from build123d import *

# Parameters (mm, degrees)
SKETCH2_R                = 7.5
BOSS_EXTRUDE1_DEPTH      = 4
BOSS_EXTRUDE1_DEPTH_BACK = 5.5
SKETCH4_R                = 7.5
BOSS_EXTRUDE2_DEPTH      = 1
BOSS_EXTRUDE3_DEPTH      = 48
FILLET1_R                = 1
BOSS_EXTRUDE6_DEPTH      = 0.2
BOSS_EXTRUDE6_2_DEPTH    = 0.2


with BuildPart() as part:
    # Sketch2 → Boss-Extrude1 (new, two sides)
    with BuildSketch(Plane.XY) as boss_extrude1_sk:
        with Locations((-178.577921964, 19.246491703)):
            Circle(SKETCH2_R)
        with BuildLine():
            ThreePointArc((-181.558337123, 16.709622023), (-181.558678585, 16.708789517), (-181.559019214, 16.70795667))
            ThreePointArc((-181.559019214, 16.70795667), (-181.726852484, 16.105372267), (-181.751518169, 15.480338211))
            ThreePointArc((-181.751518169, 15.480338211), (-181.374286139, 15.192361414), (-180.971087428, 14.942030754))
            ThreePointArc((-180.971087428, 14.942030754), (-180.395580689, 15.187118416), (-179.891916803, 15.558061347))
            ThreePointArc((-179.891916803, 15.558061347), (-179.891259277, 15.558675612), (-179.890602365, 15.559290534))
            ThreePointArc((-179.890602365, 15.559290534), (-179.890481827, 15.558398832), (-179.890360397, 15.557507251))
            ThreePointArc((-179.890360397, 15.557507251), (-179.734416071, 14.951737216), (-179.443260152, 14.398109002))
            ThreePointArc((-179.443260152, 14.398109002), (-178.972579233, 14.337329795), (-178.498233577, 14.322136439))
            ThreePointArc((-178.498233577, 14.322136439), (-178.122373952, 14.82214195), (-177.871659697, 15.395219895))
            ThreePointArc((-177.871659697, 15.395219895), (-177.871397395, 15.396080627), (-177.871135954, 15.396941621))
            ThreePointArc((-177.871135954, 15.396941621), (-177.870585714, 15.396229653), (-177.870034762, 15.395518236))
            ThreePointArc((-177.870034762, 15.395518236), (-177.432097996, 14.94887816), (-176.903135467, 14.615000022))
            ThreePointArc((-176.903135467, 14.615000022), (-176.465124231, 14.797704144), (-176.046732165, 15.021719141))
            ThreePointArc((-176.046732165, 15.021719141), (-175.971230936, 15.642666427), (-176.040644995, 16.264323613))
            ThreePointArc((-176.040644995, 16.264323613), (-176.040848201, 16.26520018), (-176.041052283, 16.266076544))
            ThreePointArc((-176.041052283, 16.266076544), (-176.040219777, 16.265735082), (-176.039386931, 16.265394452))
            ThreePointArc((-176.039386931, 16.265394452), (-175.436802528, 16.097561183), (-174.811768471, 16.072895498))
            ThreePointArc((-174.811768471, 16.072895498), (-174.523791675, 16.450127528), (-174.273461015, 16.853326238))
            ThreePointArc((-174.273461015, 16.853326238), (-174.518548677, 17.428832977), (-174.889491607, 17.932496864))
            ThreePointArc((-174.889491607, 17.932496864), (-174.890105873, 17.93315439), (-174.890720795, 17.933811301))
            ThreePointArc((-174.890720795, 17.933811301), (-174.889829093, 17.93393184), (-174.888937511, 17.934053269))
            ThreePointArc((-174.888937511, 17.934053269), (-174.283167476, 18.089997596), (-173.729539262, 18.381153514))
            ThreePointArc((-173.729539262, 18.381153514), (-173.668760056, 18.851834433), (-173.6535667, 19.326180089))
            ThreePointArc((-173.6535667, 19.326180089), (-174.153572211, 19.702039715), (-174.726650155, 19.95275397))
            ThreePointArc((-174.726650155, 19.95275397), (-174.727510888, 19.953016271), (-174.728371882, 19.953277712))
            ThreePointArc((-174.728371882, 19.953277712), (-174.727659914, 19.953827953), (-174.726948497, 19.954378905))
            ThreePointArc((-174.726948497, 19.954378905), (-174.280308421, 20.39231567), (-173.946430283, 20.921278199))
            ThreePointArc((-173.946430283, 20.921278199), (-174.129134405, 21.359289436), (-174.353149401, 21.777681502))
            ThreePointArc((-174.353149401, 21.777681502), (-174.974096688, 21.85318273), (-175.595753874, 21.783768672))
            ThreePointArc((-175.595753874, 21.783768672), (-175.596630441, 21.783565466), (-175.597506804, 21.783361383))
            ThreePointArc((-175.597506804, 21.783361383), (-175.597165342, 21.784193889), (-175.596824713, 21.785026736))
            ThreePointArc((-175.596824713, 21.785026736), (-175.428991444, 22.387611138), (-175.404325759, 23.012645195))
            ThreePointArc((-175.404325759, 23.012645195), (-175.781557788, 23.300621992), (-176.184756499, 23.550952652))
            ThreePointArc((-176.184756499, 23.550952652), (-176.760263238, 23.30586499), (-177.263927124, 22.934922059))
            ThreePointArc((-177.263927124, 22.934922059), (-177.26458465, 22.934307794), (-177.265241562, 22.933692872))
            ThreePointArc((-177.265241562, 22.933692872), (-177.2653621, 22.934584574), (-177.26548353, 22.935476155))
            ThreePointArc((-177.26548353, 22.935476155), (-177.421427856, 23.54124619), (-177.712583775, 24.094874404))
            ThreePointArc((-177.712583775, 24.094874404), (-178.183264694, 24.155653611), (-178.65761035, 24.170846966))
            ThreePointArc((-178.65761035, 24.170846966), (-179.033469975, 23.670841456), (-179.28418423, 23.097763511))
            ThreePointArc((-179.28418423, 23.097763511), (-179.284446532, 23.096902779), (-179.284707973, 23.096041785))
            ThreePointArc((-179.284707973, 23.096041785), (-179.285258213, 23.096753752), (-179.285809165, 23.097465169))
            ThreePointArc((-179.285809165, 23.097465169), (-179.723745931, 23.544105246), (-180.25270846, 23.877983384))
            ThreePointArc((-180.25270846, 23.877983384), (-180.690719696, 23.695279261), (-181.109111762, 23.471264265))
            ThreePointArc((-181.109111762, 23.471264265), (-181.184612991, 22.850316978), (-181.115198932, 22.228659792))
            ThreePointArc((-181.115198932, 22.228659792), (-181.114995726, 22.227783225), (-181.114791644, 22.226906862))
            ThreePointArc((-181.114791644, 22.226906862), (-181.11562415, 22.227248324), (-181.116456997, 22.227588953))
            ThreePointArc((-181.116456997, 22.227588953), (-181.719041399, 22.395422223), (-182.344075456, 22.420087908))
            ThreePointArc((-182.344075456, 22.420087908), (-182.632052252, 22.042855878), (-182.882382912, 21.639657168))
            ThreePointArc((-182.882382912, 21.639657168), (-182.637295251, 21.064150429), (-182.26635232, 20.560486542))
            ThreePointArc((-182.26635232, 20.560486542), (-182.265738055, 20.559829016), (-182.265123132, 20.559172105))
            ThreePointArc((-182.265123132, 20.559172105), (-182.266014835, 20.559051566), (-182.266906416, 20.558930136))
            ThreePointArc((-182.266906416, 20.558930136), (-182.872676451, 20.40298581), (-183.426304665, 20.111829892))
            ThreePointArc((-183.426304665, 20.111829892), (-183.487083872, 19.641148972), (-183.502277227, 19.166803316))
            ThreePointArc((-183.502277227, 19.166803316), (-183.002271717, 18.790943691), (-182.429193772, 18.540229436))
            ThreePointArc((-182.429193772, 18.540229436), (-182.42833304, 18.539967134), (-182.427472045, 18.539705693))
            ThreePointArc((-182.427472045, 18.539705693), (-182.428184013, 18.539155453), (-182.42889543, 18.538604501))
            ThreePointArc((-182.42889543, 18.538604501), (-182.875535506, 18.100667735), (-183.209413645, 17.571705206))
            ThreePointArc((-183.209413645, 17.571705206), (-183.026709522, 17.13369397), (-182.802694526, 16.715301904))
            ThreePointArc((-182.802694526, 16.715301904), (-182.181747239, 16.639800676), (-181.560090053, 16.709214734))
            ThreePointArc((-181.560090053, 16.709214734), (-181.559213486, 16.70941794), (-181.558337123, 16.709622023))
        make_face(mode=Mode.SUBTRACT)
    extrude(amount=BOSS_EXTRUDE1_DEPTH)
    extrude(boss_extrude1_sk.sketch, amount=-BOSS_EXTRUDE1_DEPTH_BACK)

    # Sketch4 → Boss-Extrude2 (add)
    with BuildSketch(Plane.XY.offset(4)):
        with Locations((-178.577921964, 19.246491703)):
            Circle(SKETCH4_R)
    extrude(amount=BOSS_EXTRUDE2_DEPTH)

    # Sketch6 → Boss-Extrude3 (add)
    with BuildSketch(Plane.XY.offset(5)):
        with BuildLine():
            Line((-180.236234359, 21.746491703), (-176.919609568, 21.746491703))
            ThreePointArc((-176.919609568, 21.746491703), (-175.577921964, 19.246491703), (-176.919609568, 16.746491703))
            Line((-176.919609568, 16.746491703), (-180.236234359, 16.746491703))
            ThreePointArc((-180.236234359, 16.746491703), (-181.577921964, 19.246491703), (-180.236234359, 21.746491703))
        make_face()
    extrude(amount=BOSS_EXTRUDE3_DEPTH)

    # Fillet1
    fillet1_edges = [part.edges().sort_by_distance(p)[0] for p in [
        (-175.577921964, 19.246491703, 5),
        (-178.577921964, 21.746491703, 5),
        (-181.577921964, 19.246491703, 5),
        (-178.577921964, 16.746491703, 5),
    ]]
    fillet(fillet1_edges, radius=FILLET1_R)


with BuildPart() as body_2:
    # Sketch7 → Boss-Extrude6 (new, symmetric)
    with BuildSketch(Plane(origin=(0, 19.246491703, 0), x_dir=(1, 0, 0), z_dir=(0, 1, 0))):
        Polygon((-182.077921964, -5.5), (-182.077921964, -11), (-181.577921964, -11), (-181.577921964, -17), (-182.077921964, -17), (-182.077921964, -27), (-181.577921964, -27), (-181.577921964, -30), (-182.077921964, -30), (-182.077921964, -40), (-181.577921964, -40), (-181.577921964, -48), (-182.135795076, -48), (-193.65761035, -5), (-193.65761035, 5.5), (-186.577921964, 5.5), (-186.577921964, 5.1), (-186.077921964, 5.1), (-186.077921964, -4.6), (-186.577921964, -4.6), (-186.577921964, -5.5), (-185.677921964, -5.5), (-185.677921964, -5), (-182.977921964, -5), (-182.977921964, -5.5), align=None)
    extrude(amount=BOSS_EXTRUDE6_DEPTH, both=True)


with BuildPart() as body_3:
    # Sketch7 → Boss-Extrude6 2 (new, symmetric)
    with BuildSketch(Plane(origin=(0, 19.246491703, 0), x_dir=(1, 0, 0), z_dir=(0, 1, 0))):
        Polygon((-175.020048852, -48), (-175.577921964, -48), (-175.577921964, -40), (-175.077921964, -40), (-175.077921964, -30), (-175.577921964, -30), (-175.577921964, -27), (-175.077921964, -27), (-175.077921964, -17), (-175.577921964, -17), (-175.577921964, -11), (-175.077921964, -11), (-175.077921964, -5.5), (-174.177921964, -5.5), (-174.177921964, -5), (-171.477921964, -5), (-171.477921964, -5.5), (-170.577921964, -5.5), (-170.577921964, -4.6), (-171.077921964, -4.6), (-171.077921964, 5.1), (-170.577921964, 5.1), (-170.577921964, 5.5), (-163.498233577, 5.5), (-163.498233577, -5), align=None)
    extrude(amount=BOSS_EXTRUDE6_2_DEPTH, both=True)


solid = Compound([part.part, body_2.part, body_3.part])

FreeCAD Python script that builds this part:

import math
import FreeCAD as App
import Part
import Sketcher
from FreeCAD import Vector
Q = App.Units.Quantity


def edges_at(feature, points):
    """Names of the edges that pass closest to the given points."""
    edges = feature.Shape.Edges
    near = lambda p: min(range(len(edges)), key=lambda i: edges[i].distToShape(Part.Vertex(*p))[0])
    return sorted({f"Edge{near(p) + 1}" for p in points})

doc = App.newDocument("Part")
body = doc.addObject("PartDesign::Body", "Body")

# Sketch on XY plane
sketch1 = body.newObject("Sketcher::SketchObject", "Sketch")
sketch1.AttachmentSupport = (doc.getObject("XY_Plane"), [""])
sketch1.MapMode = "FlatFace"
sketch1.addGeometry(Part.Circle(Vector(-178.577922, 19.246492, 0), Vector(0, 0, 1), 7.5), False)
sketch1.addGeometry(Part.ArcOfCircle(Part.Circle(Vector(-180.726263, 16.367851, 0), Vector(0, 0, 1), 0.899531), math.radians(157.669787), math.radians(157.784415)), False)
sketch1.addGeometry(Part.ArcOfCircle(Part.Circle(Vector(-181.762722, 17.585298, 0), Vector(0, 0, 1), 0.899211), math.radians(-76.976888), math.radians(-76.86222)), False)
sketch1.addGeometry(Part.ArcOfCircle(Part.Circle(Vector(-182.168521, 19.339768, 0), Vector(0, 0, 1), 2.7), math.radians(-103.584498), math.radians(-76.976849)), False)
sketch1.addGeometry(Part.ArcOfCircle(Part.Circle(Vector(-178.577922, 19.246492, 0), Vector(0, 0, 1), 4.925), math.radians(-160.119582), math.radians(-149.072892)), False)
sketch1.addGeometry(Part.ArcOfCircle(Part.Circle(Vector(-180.774628, 16.404735, 0), Vector(0, 0, 1), 2.7), math.radians(127.784375), math.radians(154.392025)), False)
sketch1.addGeometry(Part.ArcOfCircle(Part.Circle(Vector(-181.877888, 17.82785, 0), Vector(0, 0, 1), 0.899322), math.radians(127.669754), math.radians(127.784408)), False)
sketch1.addGeometry(Part.ArcOfCircle(Part.Circle(Vector(-182.166595, 19.400392, 0), Vector(0, 0, 1), 0.899354), math.radians(-106.976892), math.radians(-106.862242)), False)
sketch1.addGeometry(Part.ArcOfCircle(Part.Circle(Vector(-181.640834, 21.122571, 0), Vector(0, 0, 1), 2.7), math.radians(-133.584498), math.radians(-106.976849)), False)
sketch1.addGeometry(Part.ArcOfCircle(Part.Circle(Vector(-178.577922, 19.246492, 0), Vector(0, 0, 1), 4.925), math.radians(169.880418), math.radians(180.927108)), False)
sketch1.addGeometry(Part.ArcOfCircle(Part.Circle(Vector(-181.901204, 17.883811, 0), Vector(0, 0, 1), 2.7), math.radians(97.784375), math.radians(124.392025)), False)
sketch1.addGeometry(Part.ArcOfCircle(Part.Circle(Vector(-182.144963, 19.666914, 0), Vector(0, 0, 1), 0.900313), math.radians(97.669855), math.radians(97.784383)), False)
sketch1.addGeometry(Part.ArcOfCircle(Part.Circle(Vector(-181.609138, 21.173844, 0), Vector(0, 0, 1), 0.898965), math.radians(-136.976886), math.radians(-136.862186)), False)
sketch1.addGeometry(Part.ArcOfCircle(Part.Circle(Vector(-180.292442, 22.40268, 0), Vector(0, 0, 1), 2.7), math.radians(-163.584498), math.radians(-136.976849)), False)
sketch1.addGeometry(Part.ArcOfCircle(Part.Circle(Vector(-178.577922, 19.246492, 0), Vector(0, 0, 1), 4.925), math.radians(139.880418), math.radians(150.927108)), False)
sketch1.addGeometry(Part.ArcOfCircle(Part.Circle(Vector(-182.137309, 19.728017, 0), Vector(0, 0, 1), 2.7), math.radians(67.784375), math.radians(94.392025)), False)
sketch1.addGeometry(Part.ArcOfCircle(Part.Circle(Vector(-181.456563, 21.394833, 0), Vector(0, 0, 1), 0.89953), math.radians(67.669787), math.radians(67.784415)), False)
sketch1.addGeometry(Part.ArcOfCircle(Part.Circle(Vector(-180.238168, 22.431512, 0), Vector(0, 0, 1), 0.900185), math.radians(-166.976857), math.radians(-166.862313)), False)
sketch1.addGeometry(Part.ArcOfCircle(Part.Circle(Vector(-178.484645, 22.837091, 0), Vector(0, 0, 1), 2.7), math.radians(166.415501), math.radians(193.023151)), False)
sketch1.addGeometry(Part.ArcOfCircle(Part.Circle(Vector(-178.577922, 19.246492, 0), Vector(0, 0, 1), 4.925), math.radians(109.880418), math.radians(120.927108)), False)
sketch1.addGeometry(Part.ArcOfCircle(Part.Circle(Vector(-181.419679, 21.443198, 0), Vector(0, 0, 1), 2.7), math.radians(37.784375), math.radians(64.392025)), False)
sketch1.addGeometry(Part.ArcOfCircle(Part.Circle(Vector(-179.997046, 22.546084, 0), Vector(0, 0, 1), 0.899933), math.radians(37.669813), math.radians(37.784389)), False)
sketch1.addGeometry(Part.ArcOfCircle(Part.Circle(Vector(-178.423744, 22.83508, 0), Vector(0, 0, 1), 0.899644), math.radians(163.023117), math.radians(163.13773)), False)
sketch1.addGeometry(Part.ArcOfCircle(Part.Circle(Vector(-176.701843, 22.309403, 0), Vector(0, 0, 1), 2.7), math.radians(136.415502), math.radians(163.023151)), False)
sketch1.addGeometry(Part.ArcOfCircle(Part.Circle(Vector(-178.577922, 19.246492, 0), Vector(0, 0, 1), 4.925), math.radians(79.880418), math.radians(90.927108)), False)
sketch1.addGeometry(Part.ArcOfCircle(Part.Circle(Vector(-179.940603, 22.569774, 0), Vector(0, 0, 1), 2.7), math.radians(7.784375), math.radians(34.392025)), False)
sketch1.addGeometry(Part.ArcOfCircle(Part.Circle(Vector(-178.15665, 22.813649, 0), Vector(0, 0, 1), 0.899455), math.radians(7.669773), math.radians(7.78441)), False)
sketch1.addGeometry(Part.ArcOfCircle(Part.Circle(Vector(-176.649605, 22.276675, 0), Vector(0, 0, 1), 0.900378), math.radians(133.023159), math.radians(133.137679)), False)
sketch1.addGeometry(Part.ArcOfCircle(Part.Circle(Vector(-175.421734, 20.961011, 0), Vector(0, 0, 1), 2.7), math.radians(106.415502), math.radians(133.023151)), False)
sketch1.addGeometry(Part.ArcOfCircle(Part.Circle(Vector(-178.577922, 19.246492, 0), Vector(0, 0, 1), 4.925), math.radians(49.880418), math.radians(60.927108)), False)
sketch1.addGeometry(Part.ArcOfCircle(Part.Circle(Vector(-178.096397, 22.805879, 0), Vector(0, 0, 1), 2.7), math.radians(-22.215625), math.radians(4.392025)), False)
sketch1.addGeometry(Part.ArcOfCircle(Part.Circle(Vector(-176.429581, 22.125133, 0), Vector(0, 0, 1), 0.899531), math.radians(-22.330213), math.radians(-22.215585)), False)
sketch1.addGeometry(Part.ArcOfCircle(Part.Circle(Vector(-175.393122, 20.907686, 0), Vector(0, 0, 1), 0.899211), math.radians(103.023112), math.radians(103.13778)), False)
sketch1.addGeometry(Part.ArcOfCircle(Part.Circle(Vector(-174.987323, 19.153215, 0), Vector(0, 0, 1), 2.7), math.radians(76.415502), math.radians(103.023151)), False)
sketch1.addGeometry(Part.ArcOfCircle(Part.Circle(Vector(-178.577922, 19.246492, 0), Vector(0, 0, 1), 4.925), math.radians(19.880418), math.radians(30.927108)), False)
sketch1.addGeometry(Part.ArcOfCircle(Part.Circle(Vector(-176.381216, 22.088249, 0), Vector(0, 0, 1), 2.7), math.radians(-52.215625), math.radians(-25.607975)), False)
sketch1.addGeometry(Part.ArcOfCircle(Part.Circle(Vector(-175.278441, 20.665759, 0), Vector(0, 0, 1), 0.900114), math.radians(-52.33017), math.radians(-52.215617)), False)
sketch1.addGeometry(Part.ArcOfCircle(Part.Circle(Vector(-174.989697, 19.091118, 0), Vector(0, 0, 1), 0.900894), math.radians(73.023236), math.radians(73.13769)), False)
sketch1.addGeometry(Part.ArcOfCircle(Part.Circle(Vector(-175.51501, 17.370412, 0), Vector(0, 0, 1), 2.7), math.radians(46.415502), math.radians(73.023151)), False)
sketch1.addGeometry(Part.ArcOfCircle(Part.Circle(Vector(-178.577922, 19.246492, 0), Vector(0, 0, 1), 4.925), math.radians(-10.119582), math.radians(0.927108)), False)
sketch1.addGeometry(Part.ArcOfCircle(Part.Circle(Vector(-175.25464, 20.609172, 0), Vector(0, 0, 1), 2.7), math.radians(-82.215625), math.radians(-55.607975)), False)
sketch1.addGeometry(Part.ArcOfCircle(Part.Circle(Vector(-175.01105, 18.827321, 0), Vector(0, 0, 1), 0.901576), math.radians(-82.330096), math.radians(-82.215729)), False)
sketch1.addGeometry(Part.ArcOfCircle(Part.Circle(Vector(-175.547772, 17.318141, 0), Vector(0, 0, 1), 0.900426), math.radians(43.023207), math.radians(43.137721)), False)
sketch1.addGeometry(Part.ArcOfCircle(Part.Circle(Vector(-176.863402, 16.090304, 0), Vector(0, 0, 1), 2.7), math.radians(16.415502), math.radians(43.023151)), False)
sketch1.addGeometry(Part.ArcOfCircle(Part.Circle(Vector(-178.577922, 19.246492, 0), Vector(0, 0, 1), 4.925), math.radians(-40.119582), math.radians(-29.072892)), False)
sketch1.addGeometry(Part.ArcOfCircle(Part.Circle(Vector(-175.018535, 18.764967, 0), Vector(0, 0, 1), 2.7), math.radians(-112.215625), math.radians(-85.607975)), False)
sketch1.addGeometry(Part.ArcOfCircle(Part.Circle(Vector(-175.698786, 17.099358, 0), Vector(0, 0, 1), 0.900835), math.radians(-112.330171), math.radians(-112.21571)), False)
sketch1.addGeometry(Part.ArcOfCircle(Part.Circle(Vector(-176.917898, 16.06142, 0), Vector(0, 0, 1), 0.900412), math.radians(13.02315), math.radians(13.137665)), False)
sketch1.addGeometry(Part.ArcOfCircle(Part.Circle(Vector(-178.671199, 15.655893, 0), Vector(0, 0, 1), 2.7), math.radians(-13.584499), math.radians(13.023151)), False)
sketch1.addGeometry(Part.ArcOfCircle(Part.Circle(Vector(-178.577922, 19.246492, 0), Vector(0, 0, 1), 4.925), math.radians(-70.119582), math.radians(-59.072892)), False)
sketch1.addGeometry(Part.ArcOfCircle(Part.Circle(Vector(-175.736165, 17.049785, 0), Vector(0, 0, 1), 2.7), math.radians(-142.215625), math.radians(-115.607975)), False)
sketch1.addGeometry(Part.ArcOfCircle(Part.Circle(Vector(-177.159281, 15.946526, 0), Vector(0, 0, 1), 0.899322), math.radians(-142.330246), math.radians(-142.215592)), False)
sketch1.addGeometry(Part.ArcOfCircle(Part.Circle(Vector(-178.732099, 15.657903, 0), Vector(0, 0, 1), 0.899644), math.radians(-16.976883), math.radians(-16.86227)), False)
sketch1.addGeometry(Part.ArcOfCircle(Part.Circle(Vector(-180.454001, 16.18358, 0), Vector(0, 0, 1), 2.7), math.radians(-43.584498), math.radians(-16.976849)), False)
sketch1.addGeometry(Part.ArcOfCircle(Part.Circle(Vector(-178.577922, 19.246492, 0), Vector(0, 0, 1), 4.925), math.radians(-100.119582), math.radians(-89.072892)), False)
sketch1.addGeometry(Part.ArcOfCircle(Part.Circle(Vector(-177.215241, 15.92321, 0), Vector(0, 0, 1), 2.7), math.radians(-172.215625), math.radians(-145.607975)), False)
sketch1.addGeometry(Part.ArcOfCircle(Part.Circle(Vector(-178.999194, 15.679335, 0), Vector(0, 0, 1), 0.899455), math.radians(-172.330227), math.radians(-172.21559)), False)
sketch1.addGeometry(Part.ArcOfCircle(Part.Circle(Vector(-180.506239, 16.216308, 0), Vector(0, 0, 1), 0.900378), math.radians(-46.976841), math.radians(-46.862321)), False)
sketch1.addGeometry(Part.ArcOfCircle(Part.Circle(Vector(-181.73411, 17.531972, 0), Vector(0, 0, 1), 2.7), math.radians(-73.584498), math.radians(-46.976849)), False)
sketch1.addGeometry(Part.ArcOfCircle(Part.Circle(Vector(-178.577922, 19.246492, 0), Vector(0, 0, 1), 4.925), math.radians(-130.119582), math.radians(-119.072892)), False)
sketch1.addGeometry(Part.ArcOfCircle(Part.Circle(Vector(-179.059447, 15.687105, 0), Vector(0, 0, 1), 2.7), math.radians(157.784375), math.radians(184.392025)), False)
sketch1.addConstraint(Sketcher.Constraint("Coincident", 1, 1, 2, 2))
sketch1.addConstraint(Sketcher.Constraint("Tangent", 2, 1, 3, 2))
sketch1.addConstraint(Sketcher.Constraint("Coincident", 3, 1, 4, 2))
sketch1.addConstraint(Sketcher.Constraint("Coincident", 4, 1, 5, 2))
sketch1.addConstraint(Sketcher.Constraint("Tangent", 5, 1, 6, 2))
sketch1.addConstraint(Sketcher.Constraint("Coincident", 6, 1, 7, 2))
sketch1.addConstraint(Sketcher.Constraint("Tangent", 7, 1, 8, 2))
sketch1.addConstraint(Sketcher.Constraint("Coincident", 8, 1, 9, 2))
sketch1.addConstraint(Sketcher.Constraint("Coincident", 9, 1, 10, 2))
sketch1.addConstraint(Sketcher.Constraint("Tangent", 10, 1, 11, 2))
sketch1.addConstraint(Sketcher.Constraint("Coincident", 11, 1, 12, 2))
sketch1.addConstraint(Sketcher.Constraint("Tangent", 12, 1, 13, 2))
sketch1.addConstraint(Sketcher.Constraint("Coincident", 13, 1, 14, 2))
sketch1.addConstraint(Sketcher.Constraint("Coincident", 14, 1, 15, 2))
sketch1.addConstraint(Sketcher.Constraint("Tangent", 15, 1, 16, 2))
sketch1.addConstraint(Sketcher.Constraint("Coincident", 16, 1, 17, 2))
sketch1.addConstraint(Sketcher.Constraint("Tangent", 17, 1, 18, 2))
sketch1.addConstraint(Sketcher.Constraint("Coincident", 18, 1, 19, 2))
sketch1.addConstraint(Sketcher.Constraint("Coincident", 19, 1, 20, 2))
sketch1.addConstraint(Sketcher.Constraint("Tangent", 20, 1, 21, 2))
sketch1.addConstraint(Sketcher.Constraint("Coincident", 21, 1, 22, 2))
sketch1.addConstraint(Sketcher.Constraint("Tangent", 22, 1, 23, 2))
sketch1.addConstraint(Sketcher.Constraint("Coincident", 23, 1, 24, 2))
sketch1.addConstraint(Sketcher.Constraint("Coincident", 24, 1, 25, 2))
sketch1.addConstraint(Sketcher.Constraint("Tangent", 25, 1, 26, 2))
sketch1.addConstraint(Sketcher.Constraint("Coincident", 26, 1, 27, 2))
sketch1.addConstraint(Sketcher.Constraint("Tangent", 27, 1, 28, 2))
sketch1.addConstraint(Sketcher.Constraint("Coincident", 28, 1, 29, 2))
sketch1.addConstraint(Sketcher.Constraint("Coincident", 29, 1, 30, 2))
sketch1.addConstraint(Sketcher.Constraint("Tangent", 30, 1, 31, 2))
sketch1.addConstraint(Sketcher.Constraint("Coincident", 31, 1, 32, 2))
sketch1.addConstraint(Sketcher.Constraint("Tangent", 32, 1, 33, 2))
sketch1.addConstraint(Sketcher.Constraint("Coincident", 33, 1, 34, 2))
sketch1.addConstraint(Sketcher.Constraint("Coincident", 34, 1, 35, 2))
sketch1.addConstraint(Sketcher.Constraint("Tangent", 35, 1, 36, 2))
sketch1.addConstraint(Sketcher.Constraint("Coincident", 36, 1, 37, 2))
sketch1.addConstraint(Sketcher.Constraint("Tangent", 37, 1, 38, 2))
sketch1.addConstraint(Sketcher.Constraint("Coincident", 38, 1, 39, 2))
sketch1.addConstraint(Sketcher.Constraint("Coincident", 39, 1, 40, 2))
sketch1.addConstraint(Sketcher.Constraint("Tangent", 40, 1, 41, 2))
sketch1.addConstraint(Sketcher.Constraint("Coincident", 41, 1, 42, 2))
sketch1.addConstraint(Sketcher.Constraint("Tangent", 42, 1, 43, 2))
sketch1.addConstraint(Sketcher.Constraint("Coincident", 43, 1, 44, 2))
sketch1.addConstraint(Sketcher.Constraint("Coincident", 44, 1, 45, 2))
sketch1.addConstraint(Sketcher.Constraint("Tangent", 45, 1, 46, 2))
sketch1.addConstraint(Sketcher.Constraint("Coincident", 46, 1, 47, 2))
sketch1.addConstraint(Sketcher.Constraint("Tangent", 47, 1, 48, 2))
sketch1.addConstraint(Sketcher.Constraint("Coincident", 48, 1, 49, 2))
sketch1.addConstraint(Sketcher.Constraint("Coincident", 49, 1, 50, 2))
sketch1.addConstraint(Sketcher.Constraint("Tangent", 50, 1, 51, 2))
sketch1.addConstraint(Sketcher.Constraint("Coincident", 51, 1, 52, 2))
sketch1.addConstraint(Sketcher.Constraint("Tangent", 52, 1, 53, 2))
sketch1.addConstraint(Sketcher.Constraint("Coincident", 53, 1, 54, 2))
sketch1.addConstraint(Sketcher.Constraint("Coincident", 54, 1, 55, 2))
sketch1.addConstraint(Sketcher.Constraint("Tangent", 55, 1, 56, 2))
sketch1.addConstraint(Sketcher.Constraint("Coincident", 56, 1, 57, 2))
sketch1.addConstraint(Sketcher.Constraint("Tangent", 57, 1, 58, 2))
sketch1.addConstraint(Sketcher.Constraint("Coincident", 58, 1, 59, 2))
sketch1.addConstraint(Sketcher.Constraint("Coincident", 59, 1, 60, 2))
sketch1.addConstraint(Sketcher.Constraint("Tangent", 60, 1, 1, 2))
sketch1.addConstraint(Sketcher.Constraint("Coincident", 4, 3, 0, 3))
sketch1.addConstraint(Sketcher.Constraint("Coincident", 9, 3, 0, 3))
sketch1.addConstraint(Sketcher.Constraint("Coincident", 14, 3, 0, 3))
sketch1.addConstraint(Sketcher.Constraint("Coincident", 19, 3, 0, 3))
sketch1.addConstraint(Sketcher.Constraint("Coincident", 24, 3, 0, 3))
sketch1.addConstraint(Sketcher.Constraint("Coincident", 29, 3, 0, 3))
sketch1.addConstraint(Sketcher.Constraint("Coincident", 34, 3, 0, 3))
sketch1.addConstraint(Sketcher.Constraint("Coincident", 39, 3, 0, 3))
sketch1.addConstraint(Sketcher.Constraint("Coincident", 44, 3, 0, 3))
sketch1.addConstraint(Sketcher.Constraint("Coincident", 49, 3, 0, 3))
sketch1.addConstraint(Sketcher.Constraint("Coincident", 54, 3, 0, 3))
sketch1.addConstraint(Sketcher.Constraint("Coincident", 59, 3, 0, 3))
sketch1.addConstraint(Sketcher.Constraint("Equal", 3, 5))
sketch1.addConstraint(Sketcher.Constraint("Equal", 5, 8))
sketch1.addConstraint(Sketcher.Constraint("Equal", 4, 9))
sketch1.addConstraint(Sketcher.Constraint("Equal", 8, 10))
sketch1.addConstraint(Sketcher.Constraint("Equal", 10, 13))
sketch1.addConstraint(Sketcher.Constraint("Equal", 9, 14))
sketch1.addConstraint(Sketcher.Constraint("Equal", 13, 15))
sketch1.addConstraint(Sketcher.Constraint("Equal", 1, 16))
sketch1.addConstraint(Sketcher.Constraint("Equal", 15, 18))
sketch1.addConstraint(Sketcher.Constraint("Equal", 14, 19))
sketch1.addConstraint(Sketcher.Constraint("Equal", 18, 20))
sketch1.addConstraint(Sketcher.Constraint("Equal", 20, 23))
sketch1.addConstraint(Sketcher.Constraint("Equal", 19, 24))
sketch1.addConstraint(Sketcher.Constraint("Equal", 23, 25))
sketch1.addConstraint(Sketcher.Constraint("Equal", 25, 28))
sketch1.addConstraint(Sketcher.Constraint("Equal", 24, 29))
sketch1.addConstraint(Sketcher.Constraint("Equal", 28, 30))
sketch1.addConstraint(Sketcher.Constraint("Equal", 16, 31))
sketch1.addConstraint(Sketcher.Constraint("Equal", 2, 32))
sketch1.addConstraint(Sketcher.Constraint("Equal", 30, 33))
sketch1.addConstraint(Sketcher.Constraint("Equal", 29, 34))
sketch1.addConstraint(Sketcher.Constraint("Equal", 33, 35))
sketch1.addConstraint(Sketcher.Constraint("Equal", 35, 38))
sketch1.addConstraint(Sketcher.Constraint("Equal", 34, 39))
sketch1.addConstraint(Sketcher.Constraint("Equal", 38, 40))
sketch1.addConstraint(Sketcher.Constraint("Equal", 40, 43))
sketch1.addConstraint(Sketcher.Constraint("Equal", 39, 44))
sketch1.addConstraint(Sketcher.Constraint("Equal", 43, 45))
sketch1.addConstraint(Sketcher.Constraint("Equal", 45, 48))
sketch1.addConstraint(Sketcher.Constraint("Equal", 44, 49))
sketch1.addConstraint(Sketcher.Constraint("Equal", 48, 50))
sketch1.addConstraint(Sketcher.Constraint("Equal", 6, 51))
sketch1.addConstraint(Sketcher.Constraint("Equal", 22, 52))
sketch1.addConstraint(Sketcher.Constraint("Equal", 50, 53))
sketch1.addConstraint(Sketcher.Constraint("Equal", 49, 54))
sketch1.addConstraint(Sketcher.Constraint("Equal", 53, 55))
sketch1.addConstraint(Sketcher.Constraint("Equal", 26, 56))
sketch1.addConstraint(Sketcher.Constraint("Equal", 27, 57))
sketch1.addConstraint(Sketcher.Constraint("Equal", 55, 58))
sketch1.addConstraint(Sketcher.Constraint("Equal", 54, 59))
sketch1.addConstraint(Sketcher.Constraint("Equal", 58, 60))
sketch1.addConstraint(Sketcher.Constraint("Diameter", 0, 15.0))
sketch1.addConstraint(Sketcher.Constraint("Radius", 3, 2.7))
sketch1.addConstraint(Sketcher.Constraint("Radius", 4, 4.925))
sketch1.addConstraint(Sketcher.Constraint("Radius", 1, 0.899531))
sketch1.addConstraint(Sketcher.Constraint("Radius", 2, 0.899211))
sketch1.addConstraint(Sketcher.Constraint("Radius", 27, 0.900378))
sketch1.addConstraint(Sketcher.Constraint("DistanceX", 53, 3, -1, 1, 180.454001))
sketch1.addConstraint(Sketcher.Constraint("DistanceY", -1, 1, 49, 1, 14.615))
sketch1.addConstraint(Sketcher.Constraint("Radius", 6, 0.899322))
sketch1.addConstraint(Sketcher.Constraint("Radius", 7, 0.899354))
sketch1.addConstraint(Sketcher.Constraint("Radius", 11, 0.900313))
sketch1.addConstraint(Sketcher.Constraint("Radius", 12, 0.898965))
sketch1.addConstraint(Sketcher.Constraint("Radius", 17, 0.900185))
sketch1.addConstraint(Sketcher.Constraint("Radius", 21, 0.899933))
sketch1.addConstraint(Sketcher.Constraint("Radius", 22, 0.899644))
sketch1.addConstraint(Sketcher.Constraint("Radius", 26, 0.899455))
sketch1.addConstraint(Sketcher.Constraint("Radius", 36, 0.900114))
sketch1.addConstraint(Sketcher.Constraint("Radius", 37, 0.900894))
sketch1.addConstraint(Sketcher.Constraint("Radius", 41, 0.901576))
sketch1.addConstraint(Sketcher.Constraint("Radius", 42, 0.900426))
sketch1.addConstraint(Sketcher.Constraint("Radius", 46, 0.900835))
sketch1.addConstraint(Sketcher.Constraint("Radius", 47, 0.900412))
sketch1.addConstraint(Sketcher.Constraint("DistanceX", 48, 3, -1, 1, 178.671199))
sketch1.addConstraint(Sketcher.Constraint("DistanceX", 52, 3, -1, 1, 178.732099))
sketch1.addConstraint(Sketcher.Constraint("DistanceY", -1, 1, 3, 1, 16.715302))
sketch1.addConstraint(Sketcher.Constraint("DistanceX", 17, 1, -1, 1, 181.115199))
sketch1.addConstraint(Sketcher.Constraint("DistanceX", 0, 3, -1, 1, 178.577922))
sketch1.addConstraint(Sketcher.Constraint("DistanceY", -1, 1, 0, 3, 19.246492))
sketch1.addConstraint(Sketcher.Constraint("DistanceY", -1, 1, 1, 3, 16.367851))
sketch1.addConstraint(Sketcher.Constraint("DistanceX", 2, 3, -1, 1, 181.762722))
sketch1.addConstraint(Sketcher.Constraint("DistanceX", 3, 3, -1, 1, 182.168521))
sketch1.addConstraint(Sketcher.Constraint("DistanceX", 5, 3, -1, 1, 180.774628))
sketch1.addConstraint(Sketcher.Constraint("DistanceY", -1, 1, 6, 3, 17.82785))
sketch1.addConstraint(Sketcher.Constraint("DistanceY", -1, 1, 7, 3, 19.400392))
sketch1.addConstraint(Sketcher.Constraint("DistanceY", -1, 1, 8, 3, 21.122571))
sketch1.addConstraint(Sketcher.Constraint("DistanceY", -1, 1, 10, 3, 17.883811))
sketch1.addConstraint(Sketcher.Constraint("DistanceX", 12, 3, -1, 1, 181.609138))
sketch1.addConstraint(Sketcher.Constraint("DistanceX", 13, 3, -1, 1, 180.292442))
sketch1.addConstraint(Sketcher.Constraint("DistanceY", -1, 1, 13, 3, 22.40268))
sketch1.addConstraint(Sketcher.Constraint("DistanceX", 15, 3, -1, 1, 182.137309))
sketch1.addConstraint(Sketcher.Constraint("DistanceY", -1, 1, 17, 3, 22.431512))
sketch1.addConstraint(Sketcher.Constraint("DistanceY", -1, 1, 18, 3, 22.837091))
sketch1.addConstraint(Sketcher.Constraint("DistanceX", 20, 3, -1, 1, 181.419679))
sketch1.addConstraint(Sketcher.Constraint("DistanceY", -1, 1, 22, 3, 22.83508))
sketch1.addConstraint(Sketcher.Constraint("DistanceX", 26, 3, -1, 1, 178.15665))
sketch1.addConstraint(Sketcher.Constraint("DistanceY", -1, 1, 26, 3, 22.813649))
sketch1.addConstraint(Sketcher.Constraint("DistanceY", -1, 1, 28, 3, 20.961011))
sketch1.addConstraint(Sketcher.Constraint("DistanceY", -1, 1, 30, 3, 22.805879))
sketch1.addConstraint(Sketcher.Constraint("DistanceX", 31, 3, -1, 1, 176.429581))
sketch1.addConstraint(Sketcher.Constraint("DistanceX", 32, 3, -1, 1, 175.393122))
sketch1.addConstraint(Sketcher.Constraint("DistanceY", -1, 1, 35, 3, 22.088249))
sketch1.addConstraint(Sketcher.Constraint("DistanceX", 36, 3, -1, 1, 175.278441))
sketch1.addConstraint(Sketcher.Constraint("DistanceY", -1, 1, 36, 3, 20.665759))
sketch1.addConstraint(Sketcher.Constraint("DistanceY", -1, 1, 37, 3, 19.091118))
sketch1.addConstraint(Sketcher.Constraint("DistanceX", 38, 3, -1, 1, 175.51501))
sketch1.addConstraint(Sketcher.Constraint("DistanceX", 40, 3, -1, 1, 175.25464))
sketch1.addConstraint(Sketcher.Constraint("DistanceX", 41, 3, -1, 1, 175.01105))
sketch1.addConstraint(Sketcher.Constraint("DistanceY", -1, 1, 41, 3, 18.827321))
sketch1.addConstraint(Sketcher.Constraint("DistanceY", -1, 1, 42, 3, 17.318141))
sketch1.addConstraint(Sketcher.Constraint("DistanceY", -1, 1, 46, 3, 17.099358))
sketch1.addConstraint(Sketcher.Constraint("DistanceY", -1, 1, 47, 3, 16.06142))
sketch1.addConstraint(Sketcher.Constraint("DistanceX", 51, 3, -1, 1, 177.159281))
sketch1.addConstraint(Sketcher.Constraint("DistanceY", -1, 1, 53, 3, 16.18358))
sketch1.addConstraint(Sketcher.Constraint("DistanceX", 55, 3, -1, 1, 177.215241))
sketch1.addConstraint(Sketcher.Constraint("DistanceY", -1, 1, 55, 3, 15.92321))
sketch1.addConstraint(Sketcher.Constraint("DistanceX", 57, 3, -1, 1, 180.506239))
sketch1.addConstraint(Sketcher.Constraint("DistanceX", 58, 3, -1, 1, 181.73411))
sketch1.addConstraint(Sketcher.Constraint("DistanceY", -1, 1, 9, 1, 20.11183))
sketch1.addConstraint(Sketcher.Constraint("DistanceY", -1, 1, 10, 1, 20.55893))
sketch1.addConstraint(Sketcher.Constraint("DistanceY", -1, 1, 15, 1, 22.227589))
sketch1.addConstraint(Sketcher.Constraint("DistanceX", 16, 1, -1, 1, 181.114792))
sketch1.addConstraint(Sketcher.Constraint("DistanceX", 19, 1, -1, 1, 180.252708))
sketch1.addConstraint(Sketcher.Constraint("DistanceX", 20, 1, -1, 1, 179.285809))
sketch1.addConstraint(Sketcher.Constraint("DistanceY", -1, 1, 21, 1, 23.096042))
sketch1.addConstraint(Sketcher.Constraint("DistanceX", 23, 1, -1, 1, 178.65761))
sketch1.addConstraint(Sketcher.Constraint("DistanceX", 26, 1, -1, 1, 177.265242))
sketch1.addConstraint(Sketcher.Constraint("DistanceY", -1, 1, 31, 1, 21.783361))
sketch1.addConstraint(Sketcher.Constraint("DistanceY", -1, 1, 32, 1, 21.783769))
sketch1.addConstraint(Sketcher.Constraint("DistanceX", 33, 1, -1, 1, 174.353149))
sketch1.addConstraint(Sketcher.Constraint("DistanceX", 36, 1, -1, 1, 174.728372))
sketch1.addConstraint(Sketcher.Constraint("DistanceX", 41, 1, -1, 1, 174.890721))
sketch1.addConstraint(Sketcher.Constraint("DistanceX", 42, 1, -1, 1, 174.889492))
sketch1.addConstraint(Sketcher.Constraint("DistanceX", 44, 1, -1, 1, 174.811768))
sketch1.addConstraint(Sketcher.Constraint("DistanceY", -1, 1, 48, 1, 15.021719))
sketch1.addConstraint(Sketcher.Constraint("DistanceY", -1, 1, 50, 1, 15.395518))
sketch1.addConstraint(Sketcher.Constraint("DistanceX", 55, 1, -1, 1, 179.89036))
sketch1.addConstraint(Sketcher.Constraint("DistanceY", -1, 1, 56, 1, 15.559291))
sketch1.addConstraint(Sketcher.Constraint("DistanceX", 59, 1, -1, 1, 181.751518))
sketch1.addConstraint(Sketcher.Constraint("DistanceX", 60, 1, -1, 1, 181.559019))
sketch1.addConstraint(Sketcher.Constraint("DistanceY", -1, 1, 5, 3, 16.404735))
sketch1.addConstraint(Sketcher.Constraint("DistanceX", 7, 3, -1, 1, 182.166595))
sketch1.addConstraint(Sketcher.Constraint("DistanceX", 25, 3, -1, 1, 179.940603))
sketch1.addConstraint(Sketcher.Constraint("DistanceX", 27, 3, -1, 1, 176.649605))
sketch1.addConstraint(Sketcher.Constraint("DistanceX", 45, 3, -1, 1, 175.018535))
pad1 = body.newObject("PartDesign::Pad", "Pad")
pad1.Profile = sketch1
pad1.Type = "TwoLengths"
pad1.Length = 4
pad1.Length2 = 5.5

# Sketch on XY plane
sketch2 = body.newObject("Sketcher::SketchObject", "Sketch001")
sketch2.AttachmentSupport = (doc.getObject("XY_Plane"), [""])
sketch2.MapMode = "FlatFace"
sketch2.AttachmentOffset = App.Placement(Vector(0, 0, 4), App.Rotation())
sketch2.addGeometry(Part.Circle(Vector(-178.577922, 19.246492, 0), Vector(0, 0, 1), 7.5), False)
sketch2.addConstraint(Sketcher.Constraint("Diameter", 0, 15.0))
sketch2.addConstraint(Sketcher.Constraint("DistanceX", 0, 3, -1, 1, 178.577922))
sketch2.addConstraint(Sketcher.Constraint("DistanceY", -1, 1, 0, 3, 19.246492))
pad2 = body.newObject("PartDesign::Pad", "Pad001")
pad2.Profile = sketch2
pad2.Length = 1

# Sketch on XY plane
sketch3 = body.newObject("Sketcher::SketchObject", "Sketch002")
sketch3.AttachmentSupport = (doc.getObject("XY_Plane"), [""])
sketch3.MapMode = "FlatFace"
sketch3.AttachmentOffset = App.Placement(Vector(0, 0, 5), App.Rotation())
sketch3.addGeometry(Part.LineSegment(Vector(-176.91961, 21.746492, 0), Vector(-180.236234, 21.746492, 0)), False)
sketch3.addGeometry(Part.ArcOfCircle(Part.Circle(Vector(-178.577922, 19.246492, 0), Vector(0, 0, 1), 3), math.radians(123.55731), math.radians(236.44269)), False)
sketch3.addGeometry(Part.LineSegment(Vector(-180.236234, 16.746492, 0), Vector(-176.91961, 16.746492, 0)), False)
sketch3.addGeometry(Part.ArcOfCircle(Part.Circle(Vector(-178.577922, 19.246492, 0), Vector(0, 0, 1), 3), math.radians(-56.44269), math.radians(56.44269)), False)
sketch3.addConstraint(Sketcher.Constraint("Coincident", 0, 2, 1, 1))
sketch3.addConstraint(Sketcher.Constraint("Coincident", 1, 2, 2, 1))
sketch3.addConstraint(Sketcher.Constraint("Coincident", 2, 2, 3, 1))
sketch3.addConstraint(Sketcher.Constraint("Coincident", 3, 2, 0, 1))
sketch3.addConstraint(Sketcher.Constraint("Horizontal", 0))
sketch3.addConstraint(Sketcher.Constraint("Horizontal", 2))
sketch3.addConstraint(Sketcher.Constraint("Coincident", 3, 3, 1, 3))
sketch3.addConstraint(Sketcher.Constraint("Equal", 1, 3))
sketch3.addConstraint(Sketcher.Constraint("Vertical", 0, 2, 1, 2))
sketch3.addConstraint(Sketcher.Constraint("Radius", 1, 3.0))
sketch3.addConstraint(Sketcher.Constraint("DistanceY", 1, 2, 0, 2, 5.0))
sketch3.addConstraint(Sketcher.Constraint("DistanceX", 1, 3, -1, 1, 178.577922))
sketch3.addConstraint(Sketcher.Constraint("DistanceY", -1, 1, 1, 3, 19.246492))
pad3 = body.newObject("PartDesign::Pad", "Pad002")
pad3.Profile = sketch3
pad3.Length = 48
doc.recompute()

fillet = body.newObject("PartDesign::Fillet", "Fillet")
fillet.Base = (pad3, edges_at(pad3, [
    (-175.578, 19.246, 5),
    (-178.578, 21.746, 5),
    (-181.578, 19.246, 5),
    (-178.578, 16.746, 5),
]))
fillet.Radius = 1
body2 = doc.addObject("PartDesign::Body", "Body001")

# Sketch on XZ plane
sketch4 = body2.newObject("Sketcher::SketchObject", "Sketch003")
sketch4.AttachmentSupport = (doc.getObject("XZ_Plane001"), [""])
sketch4.MapMode = "FlatFace"
sketch4.AttachmentOffset = App.Placement(Vector(0, 0, -19.246492), App.Rotation())
sketch4.addGeometry(Part.LineSegment(Vector(-182.077922, 11, 0), Vector(-182.077922, 5.5, 0)), False)
sketch4.addGeometry(Part.LineSegment(Vector(-182.077922, 5.5, 0), Vector(-182.977922, 5.5, 0)), False)
sketch4.addGeometry(Part.LineSegment(Vector(-182.977922, 5.5, 0), Vector(-182.977922, 5, 0)), False)
sketch4.addGeometry(Part.LineSegment(Vector(-182.977922, 5, 0), Vector(-185.677922, 5, 0)), False)
sketch4.addGeometry(Part.LineSegment(Vector(-185.677922, 5, 0), Vector(-185.677922, 5.5, 0)), False)
sketch4.addGeometry(Part.LineSegment(Vector(-185.677922, 5.5, 0), Vector(-186.577922, 5.5, 0)), False)
sketch4.addGeometry(Part.LineSegment(Vector(-186.577922, 5.5, 0), Vector(-186.577922, 4.6, 0)), False)
sketch4.addGeometry(Part.LineSegment(Vector(-186.577922, 4.6, 0), Vector(-186.077922, 4.6, 0)), False)
sketch4.addGeometry(Part.LineSegment(Vector(-186.077922, 4.6, 0), Vector(-186.077922, -5.1, 0)), False)
sketch4.addGeometry(Part.LineSegment(Vector(-186.077922, -5.1, 0), Vector(-186.577922, -5.1, 0)), False)
sketch4.addGeometry(Part.LineSegment(Vector(-186.577922, -5.1, 0), Vector(-186.577922, -5.5, 0)), False)
sketch4.addGeometry(Part.LineSegment(Vector(-186.577922, -5.5, 0), Vector(-193.65761, -5.5, 0)), False)
sketch4.addGeometry(Part.LineSegment(Vector(-193.65761, -5.5, 0), Vector(-193.65761, 5, 0)), False)
sketch4.addGeometry(Part.LineSegment(Vector(-193.65761, 5, 0), Vector(-182.135795, 48, 0)), False)
sketch4.addGeometry(Part.LineSegment(Vector(-182.135795, 48, 0), Vector(-181.577922, 48, 0)), False)
sketch4.addGeometry(Part.LineSegment(Vector(-181.577922, 48, 0), Vector(-181.577922, 40, 0)), False)
sketch4.addGeometry(Part.LineSegment(Vector(-181.577922, 40, 0), Vector(-182.077922, 40, 0)), False)
sketch4.addGeometry(Part.LineSegment(Vector(-182.077922, 40, 0), Vector(-182.077922, 30, 0)), False)
sketch4.addGeometry(Part.LineSegment(Vector(-182.077922, 30, 0), Vector(-181.577922, 30, 0)), False)
sketch4.addGeometry(Part.LineSegment(Vector(-181.577922, 30, 0), Vector(-181.577922, 27, 0)), False)
sketch4.addGeometry(Part.LineSegment(Vector(-181.577922, 27, 0), Vector(-182.077922, 27, 0)), False)
sketch4.addGeometry(Part.LineSegment(Vector(-182.077922, 27, 0), Vector(-182.077922, 17, 0)), False)
sketch4.addGeometry(Part.LineSegment(Vector(-182.077922, 17, 0), Vector(-181.577922, 17, 0)), False)
sketch4.addGeometry(Part.LineSegment(Vector(-181.577922, 17, 0), Vector(-181.577922, 11, 0)), False)
sketch4.addGeometry(Part.LineSegment(Vector(-181.577922, 11, 0), Vector(-182.077922, 11, 0)), False)
sketch4.addConstraint(Sketcher.Constraint("Coincident", 0, 2, 1, 1))
sketch4.addConstraint(Sketcher.Constraint("Coincident", 1, 2, 2, 1))
sketch4.addConstraint(Sketcher.Constraint("Coincident", 2, 2, 3, 1))
sketch4.addConstraint(Sketcher.Constraint("Coincident", 3, 2, 4, 1))
sketch4.addConstraint(Sketcher.Constraint("Coincident", 4, 2, 5, 1))
sketch4.addConstraint(Sketcher.Constraint("Coincident", 5, 2, 6, 1))
sketch4.addConstraint(Sketcher.Constraint("Coincident", 6, 2, 7, 1))
sketch4.addConstraint(Sketcher.Constraint("Coincident", 7, 2, 8, 1))
sketch4.addConstraint(Sketcher.Constraint("Coincident", 8, 2, 9, 1))
sketch4.addConstraint(Sketcher.Constraint("Coincident", 9, 2, 10, 1))
sketch4.addConstraint(Sketcher.Constraint("Coincident", 10, 2, 11, 1))
sketch4.addConstraint(Sketcher.Constraint("Coincident", 11, 2, 12, 1))
sketch4.addConstraint(Sketcher.Constraint("Coincident", 12, 2, 13, 1))
sketch4.addConstraint(Sketcher.Constraint("Coincident", 13, 2, 14, 1))
sketch4.addConstraint(Sketcher.Constraint("Coincident", 14, 2, 15, 1))
sketch4.addConstraint(Sketcher.Constraint("Coincident", 15, 2, 16, 1))
sketch4.addConstraint(Sketcher.Constraint("Coincident", 16, 2, 17, 1))
sketch4.addConstraint(Sketcher.Constraint("Coincident", 17, 2, 18, 1))
sketch4.addConstraint(Sketcher.Constraint("Coincident", 18, 2, 19, 1))
sketch4.addConstraint(Sketcher.Constraint("Coincident", 19, 2, 20, 1))
sketch4.addConstraint(Sketcher.Constraint("Coincident", 20, 2, 21, 1))
sketch4.addConstraint(Sketcher.Constraint("Coincident", 21, 2, 22, 1))
sketch4.addConstraint(Sketcher.Constraint("Coincident", 22, 2, 23, 1))
sketch4.addConstraint(Sketcher.Constraint("Coincident", 23, 2, 24, 1))
sketch4.addConstraint(Sketcher.Constraint("Coincident", 24, 2, 0, 1))
sketch4.addConstraint(Sketcher.Constraint("Vertical", 0))
sketch4.addConstraint(Sketcher.Constraint("Horizontal", 1))
sketch4.addConstraint(Sketcher.Constraint("Vertical", 2))
sketch4.addConstraint(Sketcher.Constraint("Horizontal", 3))
sketch4.addConstraint(Sketcher.Constraint("Vertical", 4))
sketch4.addConstraint(Sketcher.Constraint("Horizontal", 5))
sketch4.addConstraint(Sketcher.Constraint("Vertical", 6))
sketch4.addConstraint(Sketcher.Constraint("Horizontal", 7))
sketch4.addConstraint(Sketcher.Constraint("Vertical", 8))
sketch4.addConstraint(Sketcher.Constraint("Horizontal", 9))
sketch4.addConstraint(Sketcher.Constraint("Vertical", 10))
sketch4.addConstraint(Sketcher.Constraint("Horizontal", 11))
sketch4.addConstraint(Sketcher.Constraint("Vertical", 12))
sketch4.addConstraint(Sketcher.Constraint("Horizontal", 14))
sketch4.addConstraint(Sketcher.Constraint("Vertical", 15))
sketch4.addConstraint(Sketcher.Constraint("Horizontal", 16))
sketch4.addConstraint(Sketcher.Constraint("Vertical", 17))
sketch4.addConstraint(Sketcher.Constraint("Horizontal", 18))
sketch4.addConstraint(Sketcher.Constraint("Vertical", 19))
sketch4.addConstraint(Sketcher.Constraint("Horizontal", 20))
sketch4.addConstraint(Sketcher.Constraint("Vertical", 21))
sketch4.addConstraint(Sketcher.Constraint("Horizontal", 22))
sketch4.addConstraint(Sketcher.Constraint("Vertical", 23))
sketch4.addConstraint(Sketcher.Constraint("Horizontal", 24))
sketch4.addConstraint(Sketcher.Constraint("Symmetric", 5, 2, 10, 2, -1))
sketch4.addConstraint(Sketcher.Constraint("Horizontal", 1, 2, 4, 2))
sketch4.addConstraint(Sketcher.Constraint("Horizontal", 3, 2, 12, 2))
sketch4.addConstraint(Sketcher.Constraint("Vertical", 0, 2, 16, 2))
sketch4.addConstraint(Sketcher.Constraint("Vertical", 15, 2, 18, 2))
sketch4.addConstraint(Sketcher.Constraint("Vertical", 17, 2, 20, 2))
sketch4.addConstraint(Sketcher.Constraint("Vertical", 19, 2, 22, 2))
sketch4.addConstraint(Sketcher.Constraint("Equal", 1, 5))
sketch4.addConstraint(Sketcher.Constraint("Equal", 9, 16))
sketch4.addConstraint(Sketcher.Constraint("Equal", 24, 2))
sketch4.addConstraint(Sketcher.Constraint("Equal", 5, 6))
sketch4.addConstraint(Sketcher.Constraint("Equal", 17, 21))
sketch4.addConstraint(Sketcher.Constraint("DistanceY", 15, 2, 15, 1, 8.0))
sketch4.addConstraint(Sketcher.Constraint("DistanceY", 17, 2, 17, 1, 10.0))
sketch4.addConstraint(Sketcher.Constraint("DistanceY", 19, 2, 19, 1, 3.0))
sketch4.addConstraint(Sketcher.Constraint("DistanceY", 23, 2, 23, 1, 6.0))
sketch4.addConstraint(Sketcher.Constraint("Angle", 13, Q("75 deg")))
sketch4.addConstraint(Sketcher.Constraint("DistanceX", 1, 2, 1, 1, 0.9))
sketch4.addConstraint(Sketcher.Constraint("DistanceX", 3, 2, 3, 1, 2.7))
sketch4.addConstraint(Sketcher.Constraint("DistanceX", 7, 1, 7, 2, 0.5))
sketch4.addConstraint(Sketcher.Constraint("DistanceY", 0, 2, 0, 1, 5.5))
sketch4.addConstraint(Sketcher.Constraint("DistanceY", 8, 2, 8, 1, 9.7))
sketch4.addConstraint(Sketcher.Constraint("DistanceY", 10, 2, 10, 1, 0.4))
sketch4.addConstraint(Sketcher.Constraint("DistanceX", 11, 2, 11, 1, 7.079688))
sketch4.addConstraint(Sketcher.Constraint("DistanceX", 0, 2, -1, 1, 182.077922))
pad4 = body2.newObject("PartDesign::Pad", "Pad003")
pad4.Profile = sketch4
pad4.Length = 0.4
pad4.Midplane = True
body3 = doc.addObject("PartDesign::Body", "Body002")

# Sketch on XZ plane
sketch5 = body3.newObject("Sketcher::SketchObject", "Sketch004")
sketch5.AttachmentSupport = (doc.getObject("XZ_Plane002"), [""])
sketch5.MapMode = "FlatFace"
sketch5.AttachmentOffset = App.Placement(Vector(0, 0, -19.246492), App.Rotation())
sketch5.addGeometry(Part.LineSegment(Vector(-175.577922, 48, 0), Vector(-175.020049, 48, 0)), False)
sketch5.addGeometry(Part.LineSegment(Vector(-175.020049, 48, 0), Vector(-163.498234, 5, 0)), False)
sketch5.addGeometry(Part.LineSegment(Vector(-163.498234, 5, 0), Vector(-163.498234, -5.5, 0)), False)
sketch5.addGeometry(Part.LineSegment(Vector(-163.498234, -5.5, 0), Vector(-170.577922, -5.5, 0)), False)
sketch5.addGeometry(Part.LineSegment(Vector(-170.577922, -5.5, 0), Vector(-170.577922, -5.1, 0)), False)
sketch5.addGeometry(Part.LineSegment(Vector(-170.577922, -5.1, 0), Vector(-171.077922, -5.1, 0)), False)
sketch5.addGeometry(Part.LineSegment(Vector(-171.077922, -5.1, 0), Vector(-171.077922, 4.6, 0)), False)
sketch5.addGeometry(Part.LineSegment(Vector(-171.077922, 4.6, 0), Vector(-170.577922, 4.6, 0)), False)
sketch5.addGeometry(Part.LineSegment(Vector(-170.577922, 4.6, 0), Vector(-170.577922, 5.5, 0)), False)
sketch5.addGeometry(Part.LineSegment(Vector(-170.577922, 5.5, 0), Vector(-171.477922, 5.5, 0)), False)
sketch5.addGeometry(Part.LineSegment(Vector(-171.477922, 5.5, 0), Vector(-171.477922, 5, 0)), False)
sketch5.addGeometry(Part.LineSegment(Vector(-171.477922, 5, 0), Vector(-174.177922, 5, 0)), False)
sketch5.addGeometry(Part.LineSegment(Vector(-174.177922, 5, 0), Vector(-174.177922, 5.5, 0)), False)
sketch5.addGeometry(Part.LineSegment(Vector(-174.177922, 5.5, 0), Vector(-175.077922, 5.5, 0)), False)
sketch5.addGeometry(Part.LineSegment(Vector(-175.077922, 5.5, 0), Vector(-175.077922, 11, 0)), False)
sketch5.addGeometry(Part.LineSegment(Vector(-175.077922, 11, 0), Vector(-175.577922, 11, 0)), False)
sketch5.addGeometry(Part.LineSegment(Vector(-175.577922, 11, 0), Vector(-175.577922, 17, 0)), False)
sketch5.addGeometry(Part.LineSegment(Vector(-175.577922, 17, 0), Vector(-175.077922, 17, 0)), False)
sketch5.addGeometry(Part.LineSegment(Vector(-175.077922, 17, 0), Vector(-175.077922, 27, 0)), False)
sketch5.addGeometry(Part.LineSegment(Vector(-175.077922, 27, 0), Vector(-175.577922, 27, 0)), False)
sketch5.addGeometry(Part.LineSegment(Vector(-175.577922, 27, 0), Vector(-175.577922, 30, 0)), False)
sketch5.addGeometry(Part.LineSegment(Vector(-175.577922, 30, 0), Vector(-175.077922, 30, 0)), False)
sketch5.addGeometry(Part.LineSegment(Vector(-175.077922, 30, 0), Vector(-175.077922, 40, 0)), False)
sketch5.addGeometry(Part.LineSegment(Vector(-175.077922, 40, 0), Vector(-175.577922, 40, 0)), False)
sketch5.addGeometry(Part.LineSegment(Vector(-175.577922, 40, 0), Vector(-175.577922, 48, 0)), False)
sketch5.addConstraint(Sketcher.Constraint("Coincident", 0, 2, 1, 1))
sketch5.addConstraint(Sketcher.Constraint("Coincident", 1, 2, 2, 1))
sketch5.addConstraint(Sketcher.Constraint("Coincident", 2, 2, 3, 1))
sketch5.addConstraint(Sketcher.Constraint("Coincident", 3, 2, 4, 1))
sketch5.addConstraint(Sketcher.Constraint("Coincident", 4, 2, 5, 1))
sketch5.addConstraint(Sketcher.Constraint("Coincident", 5, 2, 6, 1))
sketch5.addConstraint(Sketcher.Constraint("Coincident", 6, 2, 7, 1))
sketch5.addConstraint(Sketcher.Constraint("Coincident", 7, 2, 8, 1))
sketch5.addConstraint(Sketcher.Constraint("Coincident", 8, 2, 9, 1))
sketch5.addConstraint(Sketcher.Constraint("Coincident", 9, 2, 10, 1))
sketch5.addConstraint(Sketcher.Constraint("Coincident", 10, 2, 11, 1))
sketch5.addConstraint(Sketcher.Constraint("Coincident", 11, 2, 12, 1))
sketch5.addConstraint(Sketcher.Constraint("Coincident", 12, 2, 13, 1))
sketch5.addConstraint(Sketcher.Constraint("Coincident", 13, 2, 14, 1))
sketch5.addConstraint(Sketcher.Constraint("Coincident", 14, 2, 15, 1))
sketch5.addConstraint(Sketcher.Constraint("Coincident", 15, 2, 16, 1))
sketch5.addConstraint(Sketcher.Constraint("Coincident", 16, 2, 17, 1))
sketch5.addConstraint(Sketcher.Constraint("Coincident", 17, 2, 18, 1))
sketch5.addConstraint(Sketcher.Constraint("Coincident", 18, 2, 19, 1))
sketch5.addConstraint(Sketcher.Constraint("Coincident", 19, 2, 20, 1))
sketch5.addConstraint(Sketcher.Constraint("Coincident", 20, 2, 21, 1))
sketch5.addConstraint(Sketcher.Constraint("Coincident", 21, 2, 22, 1))
sketch5.addConstraint(Sketcher.Constraint("Coincident", 22, 2, 23, 1))
sketch5.addConstraint(Sketcher.Constraint("Coincident", 23, 2, 24, 1))
sketch5.addConstraint(Sketcher.Constraint("Coincident", 24, 2, 0, 1))
sketch5.addConstraint(Sketcher.Constraint("Horizontal", 0))
sketch5.addConstraint(Sketcher.Constraint("Vertical", 2))
sketch5.addConstraint(Sketcher.Constraint("Horizontal", 3))
sketch5.addConstraint(Sketcher.Constraint("Vertical", 4))
sketch5.addConstraint(Sketcher.Constraint("Horizontal", 5))
sketch5.addConstraint(Sketcher.Constraint("Vertical", 6))
sketch5.addConstraint(Sketcher.Constraint("Horizontal", 7))
sketch5.addConstraint(Sketcher.Constraint("Vertical", 8))
sketch5.addConstraint(Sketcher.Constraint("Horizontal", 9))
sketch5.addConstraint(Sketcher.Constraint("Vertical", 10))
sketch5.addConstraint(Sketcher.Constraint("Horizontal", 11))
sketch5.addConstraint(Sketcher.Constraint("Vertical", 12))
sketch5.addConstraint(Sketcher.Constraint("Horizontal", 13))
sketch5.addConstraint(Sketcher.Constraint("Vertical", 14))
sketch5.addConstraint(Sketcher.Constraint("Horizontal", 15))
sketch5.addConstraint(Sketcher.Constraint("Vertical", 16))
sketch5.addConstraint(Sketcher.Constraint("Horizontal", 17))
sketch5.addConstraint(Sketcher.Constraint("Vertical", 18))
sketch5.addConstraint(Sketcher.Constraint("Horizontal", 19))
sketch5.addConstraint(Sketcher.Constraint("Vertical", 20))
sketch5.addConstraint(Sketcher.Constraint("Horizontal", 21))
sketch5.addConstraint(Sketcher.Constraint("Vertical", 22))
sketch5.addConstraint(Sketcher.Constraint("Horizontal", 23))
sketch5.addConstraint(Sketcher.Constraint("Vertical", 24))
sketch5.addConstraint(Sketcher.Constraint("Symmetric", 3, 2, 8, 2, -1))
sketch5.addConstraint(Sketcher.Constraint("Horizontal", 1, 2, 10, 2))
sketch5.addConstraint(Sketcher.Constraint("Horizontal", 9, 2, 12, 2))
sketch5.addConstraint(Sketcher.Constraint("Vertical", 14, 2, 17, 2))
sketch5.addConstraint(Sketcher.Constraint("Vertical", 16, 2, 19, 2))
sketch5.addConstraint(Sketcher.Constraint("Vertical", 18, 2, 21, 2))
sketch5.addConstraint(Sketcher.Constraint("Vertical", 20, 2, 23, 2))
sketch5.addConstraint(Sketcher.Constraint("Equal", 9, 13))
sketch5.addConstraint(Sketcher.Constraint("Equal", 7, 15))
sketch5.addConstraint(Sketcher.Constraint("Equal", 13, 8))
sketch5.addConstraint(Sketcher.Constraint("Equal", 23, 10))
sketch5.addConstraint(Sketcher.Constraint("Equal", 18, 22))
sketch5.addConstraint(Sketcher.Constraint("DistanceY", 16, 1, 16, 2, 6.0))
sketch5.addConstraint(Sketcher.Constraint("DistanceY", 18, 1, 18, 2, 10.0))
sketch5.addConstraint(Sketcher.Constraint("DistanceY", 20, 1, 20, 2, 3.0))
sketch5.addConstraint(Sketcher.Constraint("DistanceY", 24, 1, 24, 2, 8.0))
sketch5.addConstraint(Sketcher.Constraint("Angle", 1, Q("-75 deg")))
sketch5.addConstraint(Sketcher.Constraint("DistanceX", 5, 2, 5, 1, 0.5))
sketch5.addConstraint(Sketcher.Constraint("DistanceX", 9, 2, 9, 1, 0.9))
sketch5.addConstraint(Sketcher.Constraint("DistanceX", 11, 2, 11, 1, 2.7))
sketch5.addConstraint(Sketcher.Constraint("DistanceY", 2, 2, 2, 1, 10.5))
sketch5.addConstraint(Sketcher.Constraint("DistanceY", 4, 1, 4, 2, 0.4))
sketch5.addConstraint(Sketcher.Constraint("DistanceY", 14, 1, 14, 2, 5.5))
sketch5.addConstraint(Sketcher.Constraint("DistanceX", 3, 2, 3, 1, 7.079688))
sketch5.addConstraint(Sketcher.Constraint("DistanceX", 0, 2, -1, 1, 175.020049))
pad5 = body3.newObject("PartDesign::Pad", "Pad004")
pad5.Profile = sketch5
pad5.Length = 0.4
pad5.Midplane = True

doc.recompute()
